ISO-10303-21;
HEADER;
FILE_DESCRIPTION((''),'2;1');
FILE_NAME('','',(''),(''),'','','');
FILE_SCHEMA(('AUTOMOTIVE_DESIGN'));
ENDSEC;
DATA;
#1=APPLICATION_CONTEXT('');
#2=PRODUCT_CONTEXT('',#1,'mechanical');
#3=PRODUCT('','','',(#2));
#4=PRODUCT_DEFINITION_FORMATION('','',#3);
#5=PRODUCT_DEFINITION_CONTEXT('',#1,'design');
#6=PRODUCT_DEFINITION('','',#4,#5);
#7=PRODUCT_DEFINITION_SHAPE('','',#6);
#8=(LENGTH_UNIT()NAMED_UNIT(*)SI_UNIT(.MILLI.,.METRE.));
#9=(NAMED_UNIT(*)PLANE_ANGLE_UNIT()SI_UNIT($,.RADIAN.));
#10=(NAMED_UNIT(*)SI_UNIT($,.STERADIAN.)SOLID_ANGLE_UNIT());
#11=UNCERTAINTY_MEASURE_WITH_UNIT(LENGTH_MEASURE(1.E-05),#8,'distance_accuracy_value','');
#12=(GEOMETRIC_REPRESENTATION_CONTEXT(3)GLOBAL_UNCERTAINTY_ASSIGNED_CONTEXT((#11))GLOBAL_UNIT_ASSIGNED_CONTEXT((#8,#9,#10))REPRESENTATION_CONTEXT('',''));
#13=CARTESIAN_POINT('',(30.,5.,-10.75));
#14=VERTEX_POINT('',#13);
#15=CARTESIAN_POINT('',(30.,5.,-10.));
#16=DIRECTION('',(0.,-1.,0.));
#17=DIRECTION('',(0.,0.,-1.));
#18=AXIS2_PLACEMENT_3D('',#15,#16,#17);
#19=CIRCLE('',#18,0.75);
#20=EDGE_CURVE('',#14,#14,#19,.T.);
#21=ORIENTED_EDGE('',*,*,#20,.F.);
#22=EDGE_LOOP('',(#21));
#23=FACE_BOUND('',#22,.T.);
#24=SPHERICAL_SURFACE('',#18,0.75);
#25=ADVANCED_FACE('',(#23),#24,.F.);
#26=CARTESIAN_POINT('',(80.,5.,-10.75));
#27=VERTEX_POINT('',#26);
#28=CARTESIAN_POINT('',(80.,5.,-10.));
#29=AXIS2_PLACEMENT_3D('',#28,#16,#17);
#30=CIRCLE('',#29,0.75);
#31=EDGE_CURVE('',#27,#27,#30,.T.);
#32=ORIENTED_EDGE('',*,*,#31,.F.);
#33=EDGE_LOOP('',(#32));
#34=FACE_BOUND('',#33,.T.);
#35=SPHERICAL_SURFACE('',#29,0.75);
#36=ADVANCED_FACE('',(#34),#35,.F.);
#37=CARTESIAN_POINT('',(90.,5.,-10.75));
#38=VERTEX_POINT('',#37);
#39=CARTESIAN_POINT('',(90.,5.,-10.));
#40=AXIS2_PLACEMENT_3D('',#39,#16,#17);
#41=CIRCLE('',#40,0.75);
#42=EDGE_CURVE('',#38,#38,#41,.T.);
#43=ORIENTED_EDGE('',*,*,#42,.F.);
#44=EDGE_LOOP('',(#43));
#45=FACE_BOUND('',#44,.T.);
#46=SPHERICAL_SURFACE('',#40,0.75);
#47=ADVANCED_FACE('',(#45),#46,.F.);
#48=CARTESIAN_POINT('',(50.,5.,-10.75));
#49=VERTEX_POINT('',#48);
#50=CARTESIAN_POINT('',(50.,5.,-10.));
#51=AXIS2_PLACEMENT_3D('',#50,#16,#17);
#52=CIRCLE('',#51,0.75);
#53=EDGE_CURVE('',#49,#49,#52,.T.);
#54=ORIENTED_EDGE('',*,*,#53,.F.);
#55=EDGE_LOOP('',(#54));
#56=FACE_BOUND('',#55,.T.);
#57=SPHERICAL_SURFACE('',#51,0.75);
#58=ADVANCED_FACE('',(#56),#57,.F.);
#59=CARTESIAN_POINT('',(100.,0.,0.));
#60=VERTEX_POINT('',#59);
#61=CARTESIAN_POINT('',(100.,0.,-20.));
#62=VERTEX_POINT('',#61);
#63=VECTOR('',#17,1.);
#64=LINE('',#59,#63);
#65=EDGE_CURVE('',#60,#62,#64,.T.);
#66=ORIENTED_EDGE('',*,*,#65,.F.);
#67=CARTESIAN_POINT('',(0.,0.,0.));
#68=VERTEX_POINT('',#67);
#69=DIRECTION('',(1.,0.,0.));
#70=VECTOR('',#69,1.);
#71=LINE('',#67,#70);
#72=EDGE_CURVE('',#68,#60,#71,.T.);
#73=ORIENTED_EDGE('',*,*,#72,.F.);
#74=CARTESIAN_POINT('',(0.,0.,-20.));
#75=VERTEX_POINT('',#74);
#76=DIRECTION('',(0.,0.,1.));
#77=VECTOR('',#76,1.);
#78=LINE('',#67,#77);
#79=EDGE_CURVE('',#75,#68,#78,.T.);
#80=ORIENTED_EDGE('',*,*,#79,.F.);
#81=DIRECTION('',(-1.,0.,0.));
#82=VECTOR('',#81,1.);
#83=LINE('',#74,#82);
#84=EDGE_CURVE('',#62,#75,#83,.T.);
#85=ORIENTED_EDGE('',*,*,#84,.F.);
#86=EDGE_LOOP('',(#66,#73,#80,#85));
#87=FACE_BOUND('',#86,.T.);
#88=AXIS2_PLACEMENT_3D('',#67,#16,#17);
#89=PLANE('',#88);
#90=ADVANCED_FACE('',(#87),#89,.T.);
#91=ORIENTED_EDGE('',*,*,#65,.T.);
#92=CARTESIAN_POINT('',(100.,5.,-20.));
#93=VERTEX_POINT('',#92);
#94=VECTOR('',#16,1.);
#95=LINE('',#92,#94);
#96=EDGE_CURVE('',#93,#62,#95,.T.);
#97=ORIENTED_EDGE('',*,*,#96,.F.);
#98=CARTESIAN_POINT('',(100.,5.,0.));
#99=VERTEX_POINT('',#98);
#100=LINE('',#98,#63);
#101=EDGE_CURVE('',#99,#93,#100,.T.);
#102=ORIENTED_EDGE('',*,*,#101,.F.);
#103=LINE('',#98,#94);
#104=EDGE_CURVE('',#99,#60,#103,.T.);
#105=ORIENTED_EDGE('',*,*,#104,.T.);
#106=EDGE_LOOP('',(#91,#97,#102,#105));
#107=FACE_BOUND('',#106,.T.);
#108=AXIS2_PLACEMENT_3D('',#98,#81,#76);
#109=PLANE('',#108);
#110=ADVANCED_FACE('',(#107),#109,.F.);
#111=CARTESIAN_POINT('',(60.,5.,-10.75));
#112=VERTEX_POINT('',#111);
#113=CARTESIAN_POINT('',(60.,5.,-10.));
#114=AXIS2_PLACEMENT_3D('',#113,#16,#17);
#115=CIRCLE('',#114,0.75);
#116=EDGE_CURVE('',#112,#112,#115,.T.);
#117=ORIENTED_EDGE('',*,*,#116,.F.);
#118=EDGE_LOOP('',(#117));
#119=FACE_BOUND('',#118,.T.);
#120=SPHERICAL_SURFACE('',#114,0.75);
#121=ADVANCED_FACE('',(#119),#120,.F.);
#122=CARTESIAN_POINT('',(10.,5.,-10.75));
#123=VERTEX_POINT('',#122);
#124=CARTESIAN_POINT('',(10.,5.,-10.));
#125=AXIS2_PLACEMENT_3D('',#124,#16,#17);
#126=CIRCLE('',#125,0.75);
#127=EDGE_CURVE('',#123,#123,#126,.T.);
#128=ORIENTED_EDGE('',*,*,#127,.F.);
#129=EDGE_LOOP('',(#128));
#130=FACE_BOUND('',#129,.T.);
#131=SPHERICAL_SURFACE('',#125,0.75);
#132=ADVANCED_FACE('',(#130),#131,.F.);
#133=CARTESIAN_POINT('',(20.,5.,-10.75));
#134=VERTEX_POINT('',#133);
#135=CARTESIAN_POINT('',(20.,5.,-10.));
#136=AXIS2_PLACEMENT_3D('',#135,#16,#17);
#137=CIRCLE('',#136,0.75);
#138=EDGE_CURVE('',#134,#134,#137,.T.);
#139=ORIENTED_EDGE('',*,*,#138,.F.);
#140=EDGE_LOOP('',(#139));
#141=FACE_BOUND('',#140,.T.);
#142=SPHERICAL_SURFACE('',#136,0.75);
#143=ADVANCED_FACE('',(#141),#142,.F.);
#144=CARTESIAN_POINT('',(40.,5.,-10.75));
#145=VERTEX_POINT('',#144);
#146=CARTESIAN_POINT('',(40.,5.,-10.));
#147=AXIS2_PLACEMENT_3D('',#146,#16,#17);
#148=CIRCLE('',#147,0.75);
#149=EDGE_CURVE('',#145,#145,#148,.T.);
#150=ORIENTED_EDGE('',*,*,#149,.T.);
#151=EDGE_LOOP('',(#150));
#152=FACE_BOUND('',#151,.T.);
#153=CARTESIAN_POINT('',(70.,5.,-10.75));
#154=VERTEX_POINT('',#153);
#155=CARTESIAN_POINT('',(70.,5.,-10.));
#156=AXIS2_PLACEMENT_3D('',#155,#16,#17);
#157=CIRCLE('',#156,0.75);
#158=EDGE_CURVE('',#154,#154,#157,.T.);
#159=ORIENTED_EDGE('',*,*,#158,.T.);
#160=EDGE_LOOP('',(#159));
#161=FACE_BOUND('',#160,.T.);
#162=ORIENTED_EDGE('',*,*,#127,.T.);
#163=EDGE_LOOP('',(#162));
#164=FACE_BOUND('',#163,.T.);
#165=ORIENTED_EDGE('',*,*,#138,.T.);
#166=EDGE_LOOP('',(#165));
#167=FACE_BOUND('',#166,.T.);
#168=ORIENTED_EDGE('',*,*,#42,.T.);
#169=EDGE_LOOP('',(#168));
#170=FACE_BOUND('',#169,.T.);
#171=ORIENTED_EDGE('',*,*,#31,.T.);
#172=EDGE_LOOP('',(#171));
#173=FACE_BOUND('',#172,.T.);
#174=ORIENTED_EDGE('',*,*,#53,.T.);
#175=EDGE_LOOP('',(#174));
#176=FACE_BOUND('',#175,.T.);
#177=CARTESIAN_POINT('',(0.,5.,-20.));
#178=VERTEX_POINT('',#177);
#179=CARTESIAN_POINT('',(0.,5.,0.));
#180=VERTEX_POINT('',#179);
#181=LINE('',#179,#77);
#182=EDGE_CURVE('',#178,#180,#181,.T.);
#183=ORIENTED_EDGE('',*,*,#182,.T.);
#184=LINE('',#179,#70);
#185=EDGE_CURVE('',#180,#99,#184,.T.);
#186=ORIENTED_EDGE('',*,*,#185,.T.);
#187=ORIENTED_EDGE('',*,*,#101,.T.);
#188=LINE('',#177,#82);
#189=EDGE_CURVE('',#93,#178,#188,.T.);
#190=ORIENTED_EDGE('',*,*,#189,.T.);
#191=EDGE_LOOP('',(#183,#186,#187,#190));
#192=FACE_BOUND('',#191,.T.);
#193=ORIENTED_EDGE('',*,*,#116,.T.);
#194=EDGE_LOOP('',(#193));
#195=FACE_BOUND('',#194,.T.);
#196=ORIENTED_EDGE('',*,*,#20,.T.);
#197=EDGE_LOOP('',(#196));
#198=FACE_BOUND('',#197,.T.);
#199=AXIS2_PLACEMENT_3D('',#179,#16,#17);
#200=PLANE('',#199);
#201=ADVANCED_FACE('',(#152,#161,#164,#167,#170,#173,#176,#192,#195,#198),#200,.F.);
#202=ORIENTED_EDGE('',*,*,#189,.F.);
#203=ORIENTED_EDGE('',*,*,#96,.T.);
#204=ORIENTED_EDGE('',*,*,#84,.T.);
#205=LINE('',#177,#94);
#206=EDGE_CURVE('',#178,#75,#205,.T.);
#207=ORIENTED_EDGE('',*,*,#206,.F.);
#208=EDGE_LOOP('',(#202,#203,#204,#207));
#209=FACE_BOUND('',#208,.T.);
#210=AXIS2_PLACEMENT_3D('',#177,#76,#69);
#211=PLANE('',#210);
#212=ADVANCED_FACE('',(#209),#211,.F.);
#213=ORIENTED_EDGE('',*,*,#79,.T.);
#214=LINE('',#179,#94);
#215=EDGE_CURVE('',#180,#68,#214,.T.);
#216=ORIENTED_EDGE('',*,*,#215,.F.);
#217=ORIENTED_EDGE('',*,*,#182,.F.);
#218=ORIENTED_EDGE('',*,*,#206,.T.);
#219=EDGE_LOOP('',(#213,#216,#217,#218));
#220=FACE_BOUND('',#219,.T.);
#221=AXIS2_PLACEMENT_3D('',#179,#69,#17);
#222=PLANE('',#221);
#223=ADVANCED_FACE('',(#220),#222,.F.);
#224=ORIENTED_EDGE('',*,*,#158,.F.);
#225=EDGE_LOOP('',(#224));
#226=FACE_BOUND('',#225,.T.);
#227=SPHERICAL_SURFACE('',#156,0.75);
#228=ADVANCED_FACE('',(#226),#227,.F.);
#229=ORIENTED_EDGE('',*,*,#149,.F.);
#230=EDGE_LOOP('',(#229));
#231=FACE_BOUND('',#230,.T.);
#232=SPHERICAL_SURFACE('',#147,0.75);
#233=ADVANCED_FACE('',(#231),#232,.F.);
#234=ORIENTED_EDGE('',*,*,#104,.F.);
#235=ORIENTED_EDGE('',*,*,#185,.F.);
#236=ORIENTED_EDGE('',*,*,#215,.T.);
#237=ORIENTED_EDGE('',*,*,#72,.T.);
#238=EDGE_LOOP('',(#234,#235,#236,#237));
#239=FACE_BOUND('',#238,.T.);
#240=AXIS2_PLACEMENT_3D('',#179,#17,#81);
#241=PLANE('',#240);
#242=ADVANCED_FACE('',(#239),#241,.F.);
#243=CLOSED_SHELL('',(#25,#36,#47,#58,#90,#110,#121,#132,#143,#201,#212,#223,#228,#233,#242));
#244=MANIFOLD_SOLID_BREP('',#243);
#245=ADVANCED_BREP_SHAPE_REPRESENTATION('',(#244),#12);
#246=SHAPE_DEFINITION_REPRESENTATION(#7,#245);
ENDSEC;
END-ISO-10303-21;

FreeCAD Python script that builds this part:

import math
import FreeCAD as App
import Part
import Sketcher
from FreeCAD import Vector
Q = App.Units.Quantity


def add_polygon(sketch, points):
    """Adds a closed chain of lines whose ends are joined by coincident constraints."""
    first, n = sketch.GeometryCount, len(points)
    for a, b in zip(points, points[1:] + points[:1]):
        sketch.addGeometry(Part.LineSegment(App.Vector(*a, 0), App.Vector(*b, 0)), False)
    for i in range(n):
        sketch.addConstraint(Sketcher.Constraint("Coincident", first + i, 2, first + (i + 1) % n, 1))

doc = App.newDocument("Part")
body = doc.addObject("PartDesign::Body", "Body")

sketch1 = body.newObject("Sketcher::SketchObject", "Sketch")
sketch1.AttachmentSupport = (doc.getObject("XZ_Plane"), [""])
sketch1.MapMode = "FlatFace"
add_polygon(sketch1, [(0, -20), (0, 0), (100, 0), (100, -20)])
sketch1.addConstraint(Sketcher.Constraint("Vertical", 0))
sketch1.addConstraint(Sketcher.Constraint("Horizontal", 1))
sketch1.addConstraint(Sketcher.Constraint("Vertical", 2))
sketch1.addConstraint(Sketcher.Constraint("Horizontal", 3))
sketch1.addConstraint(Sketcher.Constraint("Coincident", 0, 2, -1, 1))
sketch1.addConstraint(Sketcher.Constraint("DistanceX", 1, 1, 1, 2, Q("100 mm")))
sketch1.addConstraint(Sketcher.Constraint("DistanceY", 0, 1, 0, 2, Q("20 mm")))
pad1 = body.newObject("PartDesign::Pad", "Pad")
pad1.Profile = sketch1
pad1.Length = 5
pad1.Reversed = True

sketch2 = body.newObject("Sketcher::SketchObject", "Sketch001")
sketch2.AttachmentSupport = (doc.getObject("XZ_Plane"), [""])
sketch2.MapMode = "FlatFace"
sketch2.AttachmentOffset = App.Placement(Vector(0, 0, -5), App.Rotation())
sketch2.addGeometry(Part.LineSegment(Vector(10.75, -10, 0), Vector(9.25, -10, 0)), False)
sketch2.addGeometry(Part.ArcOfCircle(Part.Circle(Vector(10, -10, 0), Vector(0, 0, 1), 0.75), math.radians(0), math.radians(180)), False)
sketch2.addGeometry(Part.LineSegment(Vector(20.75, -10, 0), Vector(19.25, -10, 0)), False)
sketch2.addGeometry(Part.ArcOfCircle(Part.Circle(Vector(20, -10, 0), Vector(0, 0, 1), 0.75), math.radians(0), math.radians(180)), False)
sketch2.addGeometry(Part.LineSegment(Vector(30.75, -10, 0), Vector(29.25, -10, 0)), False)
sketch2.addGeometry(Part.ArcOfCircle(Part.Circle(Vector(30, -10, 0), Vector(0, 0, 1), 0.75), math.radians(0), math.radians(180)), False)
sketch2.addGeometry(Part.LineSegment(Vector(40.75, -10, 0), Vector(39.25, -10, 0)), False)
sketch2.addGeometry(Part.ArcOfCircle(Part.Circle(Vector(40, -10, 0), Vector(0, 0, 1), 0.75), math.radians(0), math.radians(180)), False)
sketch2.addGeometry(Part.LineSegment(Vector(50.75, -10, 0), Vector(49.25, -10, 0)), False)
sketch2.addGeometry(Part.ArcOfCircle(Part.Circle(Vector(50, -10, 0), Vector(0, 0, 1), 0.75), math.radians(0), math.radians(180)), False)
sketch2.addGeometry(Part.LineSegment(Vector(60.75, -10, 0), Vector(59.25, -10, 0)), False)
sketch2.addGeometry(Part.ArcOfCircle(Part.Circle(Vector(60, -10, 0), Vector(0, 0, 1), 0.75), math.radians(0), math.radians(180)), False)
sketch2.addGeometry(Part.LineSegment(Vector(70.75, -10, 0), Vector(69.25, -10, 0)), False)
sketch2.addGeometry(Part.ArcOfCircle(Part.Circle(Vector(70, -10, 0), Vector(0, 0, 1), 0.75), math.radians(0), math.radians(180)), False)
sketch2.addGeometry(Part.LineSegment(Vector(80.75, -10, 0), Vector(79.25, -10, 0)), False)
sketch2.addGeometry(Part.ArcOfCircle(Part.Circle(Vector(80, -10, 0), Vector(0, 0, 1), 0.75), math.radians(0), math.radians(180)), False)
sketch2.addGeometry(Part.LineSegment(Vector(90.75, -10, 0), Vector(89.25, -10, 0)), False)
sketch2.addGeometry(Part.ArcOfCircle(Part.Circle(Vector(90, -10, 0), Vector(0, 0, 1), 0.75), math.radians(0), math.radians(180)), False)
sketch2.addGeometry(Part.LineSegment(Vector(9.25, -10, 0), Vector(90.75, -10, 0)), True)
sketch2.addConstraint(Sketcher.Constraint("Coincident", 0, 1, 1, 1))
sketch2.addConstraint(Sketcher.Constraint("Coincident", 1, 2, 0, 2))
sketch2.addConstraint(Sketcher.Constraint("Coincident", 2, 1, 3, 1))
sketch2.addConstraint(Sketcher.Constraint("Coincident", 3, 2, 2, 2))
sketch2.addConstraint(Sketcher.Constraint("Coincident", 4, 1, 5, 1))
sketch2.addConstraint(Sketcher.Constraint("Coincident", 5, 2, 4, 2))
sketch2.addConstraint(Sketcher.Constraint("Coincident", 6, 1, 7, 1))
sketch2.addConstraint(Sketcher.Constraint("Coincident", 7, 2, 6, 2))
sketch2.addConstraint(Sketcher.Constraint("Coincident", 8, 1, 9, 1))
sketch2.addConstraint(Sketcher.Constraint("Coincident", 9, 2, 8, 2))
sketch2.addConstraint(Sketcher.Constraint("Coincident", 10, 1, 11, 1))
sketch2.addConstraint(Sketcher.Constraint("Coincident", 11, 2, 10, 2))
sketch2.addConstraint(Sketcher.Constraint("Coincident", 12, 1, 13, 1))
sketch2.addConstraint(Sketcher.Constraint("Coincident", 13, 2, 12, 2))
sketch2.addConstraint(Sketcher.Constraint("Coincident", 14, 1, 15, 1))
sketch2.addConstraint(Sketcher.Constraint("Coincident", 15, 2, 14, 2))
sketch2.addConstraint(Sketcher.Constraint("Coincident", 16, 1, 17, 1))
sketch2.addConstraint(Sketcher.Constraint("Coincident", 17, 2, 16, 2))
sketch2.addConstraint(Sketcher.Constraint("Horizontal", 0))
sketch2.addConstraint(Sketcher.Constraint("Horizontal", 2))
sketch2.addConstraint(Sketcher.Constraint("Horizontal", 4))
sketch2.addConstraint(Sketcher.Constraint("Horizontal", 6))
sketch2.addConstraint(Sketcher.Constraint("Horizontal", 8))
sketch2.addConstraint(Sketcher.Constraint("Horizontal", 10))
sketch2.addConstraint(Sketcher.Constraint("Horizontal", 12))
sketch2.addConstraint(Sketcher.Constraint("Horizontal", 14))
sketch2.addConstraint(Sketcher.Constraint("Horizontal", 16))
sketch2.addConstraint(Sketcher.Constraint("Horizontal", 18))
sketch2.addConstraint(Sketcher.Constraint("Coincident", 18, 1, 1, 2))
sketch2.addConstraint(Sketcher.Constraint("Coincident", 18, 2, 16, 1))
sketch2.addConstraint(Sketcher.Constraint("Equal", 1, 3))
sketch2.addConstraint(Sketcher.Constraint("Equal", 3, 5))
sketch2.addConstraint(Sketcher.Constraint("Equal", 5, 7))
sketch2.addConstraint(Sketcher.Constraint("Equal", 7, 9))
sketch2.addConstraint(Sketcher.Constraint("Equal", 9, 11))
sketch2.addConstraint(Sketcher.Constraint("Equal", 11, 13))
sketch2.addConstraint(Sketcher.Constraint("Equal", 13, 15))
sketch2.addConstraint(Sketcher.Constraint("Equal", 15, 17))
sketch2.addConstraint(Sketcher.Constraint("Horizontal", 1, 3, 3, 3))
sketch2.addConstraint(Sketcher.Constraint("Horizontal", 3, 3, 5, 3))
sketch2.addConstraint(Sketcher.Constraint("Horizontal", 5, 3, 7, 3))
sketch2.addConstraint(Sketcher.Constraint("Horizontal", 7, 3, 9, 3))
sketch2.addConstraint(Sketcher.Constraint("Horizontal", 9, 3, 11, 3))
sketch2.addConstraint(Sketcher.Constraint("Horizontal", 11, 3, 13, 3))
sketch2.addConstraint(Sketcher.Constraint("Horizontal", 13, 3, 15, 3))
sketch2.addConstraint(Sketcher.Constraint("Horizontal", 15, 3, 17, 3))
sketch2.addConstraint(Sketcher.Constraint("Horizontal", 17, 3, 0, 1))
sketch2.addConstraint(Sketcher.Constraint("Horizontal", 1, 2, 2, 1))
sketch2.addConstraint(Sketcher.Constraint("Horizontal", 3, 2, 4, 1))
sketch2.addConstraint(Sketcher.Constraint("Horizontal", 5, 2, 6, 1))
sketch2.addConstraint(Sketcher.Constraint("Horizontal", 7, 2, 8, 1))
sketch2.addConstraint(Sketcher.Constraint("Horizontal", 9, 2, 10, 1))
sketch2.addConstraint(Sketcher.Constraint("Horizontal", 11, 2, 12, 1))
sketch2.addConstraint(Sketcher.Constraint("Horizontal", 13, 2, 14, 1))
sketch2.addConstraint(Sketcher.Constraint("Radius", 1, Q("0.75 mm")))
sketch2.addConstraint(Sketcher.Constraint("DistanceX", 18, 1, 18, 2, Q("81.5 mm")))
sketch2.addConstraint(Sketcher.Constraint("DistanceX", -1, 1, 1, 3, Q("10 mm")))
sketch2.addConstraint(Sketcher.Constraint("DistanceY", 1, 3, -1, 1, Q("10 mm")))
sketch2.addConstraint(Sketcher.Constraint("DistanceX", -1, 1, 3, 3, Q("20 mm")))
sketch2.addConstraint(Sketcher.Constraint("DistanceX", -1, 1, 5, 3, Q("30 mm")))
sketch2.addConstraint(Sketcher.Constraint("DistanceX", -1, 1, 7, 3, Q("40 mm")))
sketch2.addConstraint(Sketcher.Constraint("DistanceX", -1, 1, 9, 3, Q("50 mm")))
sketch2.addConstraint(Sketcher.Constraint("DistanceX", -1, 1, 11, 3, Q("60 mm")))
sketch2.addConstraint(Sketcher.Constraint("DistanceX", -1, 1, 13, 3, Q("70 mm")))
sketch2.addConstraint(Sketcher.Constraint("DistanceX", -1, 1, 15, 3, Q("80 mm")))
groove = body.newObject("PartDesign::Groove", "Groove")
groove.Profile = sketch2
groove.ReferenceAxis = (sketch2, ["Axis0"])
groove.Angle = 360

doc.recompute()
